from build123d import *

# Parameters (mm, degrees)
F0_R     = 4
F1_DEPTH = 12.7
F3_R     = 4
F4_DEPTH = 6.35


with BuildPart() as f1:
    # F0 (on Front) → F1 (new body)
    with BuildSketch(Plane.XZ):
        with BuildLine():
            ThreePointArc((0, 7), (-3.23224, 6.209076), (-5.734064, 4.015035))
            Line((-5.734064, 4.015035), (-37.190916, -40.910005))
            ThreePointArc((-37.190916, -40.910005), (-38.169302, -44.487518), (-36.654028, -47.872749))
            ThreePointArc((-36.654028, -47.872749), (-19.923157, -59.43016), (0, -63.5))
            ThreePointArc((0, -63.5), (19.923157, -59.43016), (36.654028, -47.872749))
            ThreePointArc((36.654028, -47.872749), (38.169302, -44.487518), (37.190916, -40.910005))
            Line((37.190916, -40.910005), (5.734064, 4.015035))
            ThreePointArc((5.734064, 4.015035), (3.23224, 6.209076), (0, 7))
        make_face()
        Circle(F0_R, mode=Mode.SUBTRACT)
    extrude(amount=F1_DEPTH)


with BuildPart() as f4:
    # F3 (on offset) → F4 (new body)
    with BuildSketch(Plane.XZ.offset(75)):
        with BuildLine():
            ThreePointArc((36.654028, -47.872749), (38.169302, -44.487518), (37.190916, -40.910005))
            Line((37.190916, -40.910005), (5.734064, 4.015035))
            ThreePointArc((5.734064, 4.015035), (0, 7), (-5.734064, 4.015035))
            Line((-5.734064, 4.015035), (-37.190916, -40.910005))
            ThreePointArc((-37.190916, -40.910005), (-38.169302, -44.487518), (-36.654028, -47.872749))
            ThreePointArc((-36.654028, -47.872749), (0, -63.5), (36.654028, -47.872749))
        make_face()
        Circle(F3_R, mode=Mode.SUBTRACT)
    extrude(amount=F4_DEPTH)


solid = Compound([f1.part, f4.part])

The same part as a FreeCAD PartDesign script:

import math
import FreeCAD as App
import Part
import Sketcher
from FreeCAD import Vector
Q = App.Units.Quantity

doc = App.newDocument("Part")
body = doc.addObject("PartDesign::Body", "Body")

# Sketch on XZ plane
sketch1 = body.newObject("Sketcher::SketchObject", "Sketch")
sketch1.AttachmentSupport = (doc.getObject("XZ_Plane"), [""])
sketch1.MapMode = "FlatFace"
sketch1.addGeometry(Part.ArcOfCircle(Part.Circle(Vector(0, 0, 0), Vector(0, 0, 1), 7), math.radians(90), math.radians(145)), False)
sketch1.addGeometry(Part.LineSegment(Vector(-5.7, 4, 0), Vector(-37.2, -40.9, 0)), False)
sketch1.addGeometry(Part.ArcOfCircle(Part.Circle(Vector(-32.7, -44.1, 0), Vector(0, 0, 1), 5.5), math.radians(145), math.radians(224)), False)
sketch1.addGeometry(Part.ArcOfCircle(Part.Circle(Vector(0, -12.7, 0), Vector(0, 0, 1), 50.8), math.radians(-136), math.radians(-90)), False)
sketch1.addGeometry(Part.ArcOfCircle(Part.Circle(Vector(0, -12.7, 0), Vector(0, 0, 1), 50.8), math.radians(-90), math.radians(-44)), False)
sketch1.addGeometry(Part.ArcOfCircle(Part.Circle(Vector(32.7, -44.1, 0), Vector(0, 0, 1), 5.5), math.radians(-44), math.radians(35)), False)
sketch1.addGeometry(Part.LineSegment(Vector(37.2, -40.9, 0), Vector(5.7, 4, 0)), False)
sketch1.addGeometry(Part.ArcOfCircle(Part.Circle(Vector(0, 0, 0), Vector(0, 0, 1), 7), math.radians(35), math.radians(90)), False)
sketch1.addGeometry(Part.Circle(Vector(0, 0, 0), Vector(0, 0, 1), 4), False)
sketch1.addConstraint(Sketcher.Constraint("Tangent", 0, 2, 1, 1))
sketch1.addConstraint(Sketcher.Constraint("Tangent", 1, 2, 2, 1))
sketch1.addConstraint(Sketcher.Constraint("Tangent", 2, 2, 3, 1))
sketch1.addConstraint(Sketcher.Constraint("Tangent", 3, 2, 4, 1))
sketch1.addConstraint(Sketcher.Constraint("Tangent", 4, 2, 5, 1))
sketch1.addConstraint(Sketcher.Constraint("Tangent", 5, 2, 6, 1))
sketch1.addConstraint(Sketcher.Constraint("Tangent", 6, 2, 7, 1))
sketch1.addConstraint(Sketcher.Constraint("Tangent", 7, 2, 0, 1))
sketch1.addConstraint(Sketcher.Constraint("Coincident", 0, 3, -1, 1))
sketch1.addConstraint(Sketcher.Constraint("Coincident", 8, 3, -1, 1))
sketch1.addConstraint(Sketcher.Constraint("Equal", 3, 4))
sketch1.addConstraint(Sketcher.Constraint("Equal", 2, 5))
sketch1.addConstraint(Sketcher.Constraint("Equal", 0, 7))
sketch1.addConstraint(Sketcher.Constraint("Symmetric", 2, 3, 5, 3, -2))
sketch1.addConstraint(Sketcher.Constraint("PointOnObject", 3, 2, -2))
sketch1.addConstraint(Sketcher.Constraint("PointOnObject", 7, 2, -2))
sketch1.addConstraint(Sketcher.Constraint("Radius", 3, Q("1.9999999 in")))
sketch1.addConstraint(Sketcher.Constraint("Angle", 1, Q("-125 deg")))
sketch1.addConstraint(Sketcher.Constraint("DistanceY", 3, 3, -1, 1, Q("0.5000001 in")))
sketch1.addConstraint(Sketcher.Constraint("Diameter", 8, Q("8 mm")))
sketch1.addConstraint(Sketcher.Constraint("Radius", 0, Q("6.999999 mm")))
sketch1.addConstraint(Sketcher.Constraint("Radius", 2, Q("5.499999 mm")))
pad1 = body.newObject("PartDesign::Pad", "Pad")
pad1.Profile = sketch1
pad1.Length = Q("0.5 in")
body2 = doc.addObject("PartDesign::Body", "Body001")

# Sketch on XZ plane
sketch2 = body2.newObject("Sketcher::SketchObject", "Sketch001")
sketch2.AttachmentSupport = (doc.getObject("XZ_Plane001"), [""])
sketch2.MapMode = "FlatFace"
sketch2.AttachmentOffset = App.Placement(Vector(0, 0, 75), App.Rotation())
sketch2.addGeometry(Part.ArcOfCircle(Part.Circle(Vector(32.7, -44.1, 0), Vector(0, 0, 1), 5.5), math.radians(-44), math.radians(35)), False)
sketch2.addGeometry(Part.LineSegment(Vector(37.2, -40.9, 0), Vector(5.7, 4, 0)), False)
sketch2.addGeometry(Part.ArcOfCircle(Part.Circle(Vector(0, 0, 0), Vector(0, 0, 1), 7), math.radians(35), math.radians(145)), False)
sketch2.addGeometry(Part.LineSegment(Vector(-5.7, 4, 0), Vector(-37.2, -40.9, 0)), False)
sketch2.addGeometry(Part.ArcOfCircle(Part.Circle(Vector(-32.7, -44.1, 0), Vector(0, 0, 1), 5.5), math.radians(145), math.radians(224)), False)
sketch2.addGeometry(Part.ArcOfCircle(Part.Circle(Vector(0, -12.7, 0), Vector(0, 0, 1), 50.8), math.radians(-136), math.radians(-44)), False)
sketch2.addGeometry(Part.Circle(Vector(0, 0, 0), Vector(0, 0, 1), 4), False)
sketch2.addConstraint(Sketcher.Constraint("Tangent", 0, 2, 1, 1))
sketch2.addConstraint(Sketcher.Constraint("Tangent", 1, 2, 2, 1))
sketch2.addConstraint(Sketcher.Constraint("Tangent", 2, 2, 3, 1))
sketch2.addConstraint(Sketcher.Constraint("Tangent", 3, 2, 4, 1))
sketch2.addConstraint(Sketcher.Constraint("Tangent", 4, 2, 5, 1))
sketch2.addConstraint(Sketcher.Constraint("Tangent", 5, 2, 0, 1))
sketch2.addConstraint(Sketcher.Constraint("Coincident", 2, 3, -1, 1))
sketch2.addConstraint(Sketcher.Constraint("Coincident", 6, 3, -1, 1))
sketch2.addConstraint(Sketcher.Constraint("Equal", 0, 4))
sketch2.addConstraint(Sketcher.Constraint("Symmetric", 0, 3, 4, 3, -2))
sketch2.addConstraint(Sketcher.Constraint("Radius", 5, Q("2.0000001 in")))
sketch2.addConstraint(Sketcher.Constraint("Angle", 1, Q("125 deg")))
sketch2.addConstraint(Sketcher.Constraint("DistanceY", 5, 3, -1, 1, Q("0.4999999 in")))
sketch2.addConstraint(Sketcher.Constraint("Diameter", 6, Q("8 mm")))
sketch2.addConstraint(Sketcher.Constraint("Radius", 0, Q("5.499999 mm")))
sketch2.addConstraint(Sketcher.Constraint("Radius", 2, Q("6.999999 mm")))
pad2 = body2.newObject("PartDesign::Pad", "Pad001")
pad2.Profile = sketch2
pad2.Length = Q("0.25 in")

doc.recompute()
